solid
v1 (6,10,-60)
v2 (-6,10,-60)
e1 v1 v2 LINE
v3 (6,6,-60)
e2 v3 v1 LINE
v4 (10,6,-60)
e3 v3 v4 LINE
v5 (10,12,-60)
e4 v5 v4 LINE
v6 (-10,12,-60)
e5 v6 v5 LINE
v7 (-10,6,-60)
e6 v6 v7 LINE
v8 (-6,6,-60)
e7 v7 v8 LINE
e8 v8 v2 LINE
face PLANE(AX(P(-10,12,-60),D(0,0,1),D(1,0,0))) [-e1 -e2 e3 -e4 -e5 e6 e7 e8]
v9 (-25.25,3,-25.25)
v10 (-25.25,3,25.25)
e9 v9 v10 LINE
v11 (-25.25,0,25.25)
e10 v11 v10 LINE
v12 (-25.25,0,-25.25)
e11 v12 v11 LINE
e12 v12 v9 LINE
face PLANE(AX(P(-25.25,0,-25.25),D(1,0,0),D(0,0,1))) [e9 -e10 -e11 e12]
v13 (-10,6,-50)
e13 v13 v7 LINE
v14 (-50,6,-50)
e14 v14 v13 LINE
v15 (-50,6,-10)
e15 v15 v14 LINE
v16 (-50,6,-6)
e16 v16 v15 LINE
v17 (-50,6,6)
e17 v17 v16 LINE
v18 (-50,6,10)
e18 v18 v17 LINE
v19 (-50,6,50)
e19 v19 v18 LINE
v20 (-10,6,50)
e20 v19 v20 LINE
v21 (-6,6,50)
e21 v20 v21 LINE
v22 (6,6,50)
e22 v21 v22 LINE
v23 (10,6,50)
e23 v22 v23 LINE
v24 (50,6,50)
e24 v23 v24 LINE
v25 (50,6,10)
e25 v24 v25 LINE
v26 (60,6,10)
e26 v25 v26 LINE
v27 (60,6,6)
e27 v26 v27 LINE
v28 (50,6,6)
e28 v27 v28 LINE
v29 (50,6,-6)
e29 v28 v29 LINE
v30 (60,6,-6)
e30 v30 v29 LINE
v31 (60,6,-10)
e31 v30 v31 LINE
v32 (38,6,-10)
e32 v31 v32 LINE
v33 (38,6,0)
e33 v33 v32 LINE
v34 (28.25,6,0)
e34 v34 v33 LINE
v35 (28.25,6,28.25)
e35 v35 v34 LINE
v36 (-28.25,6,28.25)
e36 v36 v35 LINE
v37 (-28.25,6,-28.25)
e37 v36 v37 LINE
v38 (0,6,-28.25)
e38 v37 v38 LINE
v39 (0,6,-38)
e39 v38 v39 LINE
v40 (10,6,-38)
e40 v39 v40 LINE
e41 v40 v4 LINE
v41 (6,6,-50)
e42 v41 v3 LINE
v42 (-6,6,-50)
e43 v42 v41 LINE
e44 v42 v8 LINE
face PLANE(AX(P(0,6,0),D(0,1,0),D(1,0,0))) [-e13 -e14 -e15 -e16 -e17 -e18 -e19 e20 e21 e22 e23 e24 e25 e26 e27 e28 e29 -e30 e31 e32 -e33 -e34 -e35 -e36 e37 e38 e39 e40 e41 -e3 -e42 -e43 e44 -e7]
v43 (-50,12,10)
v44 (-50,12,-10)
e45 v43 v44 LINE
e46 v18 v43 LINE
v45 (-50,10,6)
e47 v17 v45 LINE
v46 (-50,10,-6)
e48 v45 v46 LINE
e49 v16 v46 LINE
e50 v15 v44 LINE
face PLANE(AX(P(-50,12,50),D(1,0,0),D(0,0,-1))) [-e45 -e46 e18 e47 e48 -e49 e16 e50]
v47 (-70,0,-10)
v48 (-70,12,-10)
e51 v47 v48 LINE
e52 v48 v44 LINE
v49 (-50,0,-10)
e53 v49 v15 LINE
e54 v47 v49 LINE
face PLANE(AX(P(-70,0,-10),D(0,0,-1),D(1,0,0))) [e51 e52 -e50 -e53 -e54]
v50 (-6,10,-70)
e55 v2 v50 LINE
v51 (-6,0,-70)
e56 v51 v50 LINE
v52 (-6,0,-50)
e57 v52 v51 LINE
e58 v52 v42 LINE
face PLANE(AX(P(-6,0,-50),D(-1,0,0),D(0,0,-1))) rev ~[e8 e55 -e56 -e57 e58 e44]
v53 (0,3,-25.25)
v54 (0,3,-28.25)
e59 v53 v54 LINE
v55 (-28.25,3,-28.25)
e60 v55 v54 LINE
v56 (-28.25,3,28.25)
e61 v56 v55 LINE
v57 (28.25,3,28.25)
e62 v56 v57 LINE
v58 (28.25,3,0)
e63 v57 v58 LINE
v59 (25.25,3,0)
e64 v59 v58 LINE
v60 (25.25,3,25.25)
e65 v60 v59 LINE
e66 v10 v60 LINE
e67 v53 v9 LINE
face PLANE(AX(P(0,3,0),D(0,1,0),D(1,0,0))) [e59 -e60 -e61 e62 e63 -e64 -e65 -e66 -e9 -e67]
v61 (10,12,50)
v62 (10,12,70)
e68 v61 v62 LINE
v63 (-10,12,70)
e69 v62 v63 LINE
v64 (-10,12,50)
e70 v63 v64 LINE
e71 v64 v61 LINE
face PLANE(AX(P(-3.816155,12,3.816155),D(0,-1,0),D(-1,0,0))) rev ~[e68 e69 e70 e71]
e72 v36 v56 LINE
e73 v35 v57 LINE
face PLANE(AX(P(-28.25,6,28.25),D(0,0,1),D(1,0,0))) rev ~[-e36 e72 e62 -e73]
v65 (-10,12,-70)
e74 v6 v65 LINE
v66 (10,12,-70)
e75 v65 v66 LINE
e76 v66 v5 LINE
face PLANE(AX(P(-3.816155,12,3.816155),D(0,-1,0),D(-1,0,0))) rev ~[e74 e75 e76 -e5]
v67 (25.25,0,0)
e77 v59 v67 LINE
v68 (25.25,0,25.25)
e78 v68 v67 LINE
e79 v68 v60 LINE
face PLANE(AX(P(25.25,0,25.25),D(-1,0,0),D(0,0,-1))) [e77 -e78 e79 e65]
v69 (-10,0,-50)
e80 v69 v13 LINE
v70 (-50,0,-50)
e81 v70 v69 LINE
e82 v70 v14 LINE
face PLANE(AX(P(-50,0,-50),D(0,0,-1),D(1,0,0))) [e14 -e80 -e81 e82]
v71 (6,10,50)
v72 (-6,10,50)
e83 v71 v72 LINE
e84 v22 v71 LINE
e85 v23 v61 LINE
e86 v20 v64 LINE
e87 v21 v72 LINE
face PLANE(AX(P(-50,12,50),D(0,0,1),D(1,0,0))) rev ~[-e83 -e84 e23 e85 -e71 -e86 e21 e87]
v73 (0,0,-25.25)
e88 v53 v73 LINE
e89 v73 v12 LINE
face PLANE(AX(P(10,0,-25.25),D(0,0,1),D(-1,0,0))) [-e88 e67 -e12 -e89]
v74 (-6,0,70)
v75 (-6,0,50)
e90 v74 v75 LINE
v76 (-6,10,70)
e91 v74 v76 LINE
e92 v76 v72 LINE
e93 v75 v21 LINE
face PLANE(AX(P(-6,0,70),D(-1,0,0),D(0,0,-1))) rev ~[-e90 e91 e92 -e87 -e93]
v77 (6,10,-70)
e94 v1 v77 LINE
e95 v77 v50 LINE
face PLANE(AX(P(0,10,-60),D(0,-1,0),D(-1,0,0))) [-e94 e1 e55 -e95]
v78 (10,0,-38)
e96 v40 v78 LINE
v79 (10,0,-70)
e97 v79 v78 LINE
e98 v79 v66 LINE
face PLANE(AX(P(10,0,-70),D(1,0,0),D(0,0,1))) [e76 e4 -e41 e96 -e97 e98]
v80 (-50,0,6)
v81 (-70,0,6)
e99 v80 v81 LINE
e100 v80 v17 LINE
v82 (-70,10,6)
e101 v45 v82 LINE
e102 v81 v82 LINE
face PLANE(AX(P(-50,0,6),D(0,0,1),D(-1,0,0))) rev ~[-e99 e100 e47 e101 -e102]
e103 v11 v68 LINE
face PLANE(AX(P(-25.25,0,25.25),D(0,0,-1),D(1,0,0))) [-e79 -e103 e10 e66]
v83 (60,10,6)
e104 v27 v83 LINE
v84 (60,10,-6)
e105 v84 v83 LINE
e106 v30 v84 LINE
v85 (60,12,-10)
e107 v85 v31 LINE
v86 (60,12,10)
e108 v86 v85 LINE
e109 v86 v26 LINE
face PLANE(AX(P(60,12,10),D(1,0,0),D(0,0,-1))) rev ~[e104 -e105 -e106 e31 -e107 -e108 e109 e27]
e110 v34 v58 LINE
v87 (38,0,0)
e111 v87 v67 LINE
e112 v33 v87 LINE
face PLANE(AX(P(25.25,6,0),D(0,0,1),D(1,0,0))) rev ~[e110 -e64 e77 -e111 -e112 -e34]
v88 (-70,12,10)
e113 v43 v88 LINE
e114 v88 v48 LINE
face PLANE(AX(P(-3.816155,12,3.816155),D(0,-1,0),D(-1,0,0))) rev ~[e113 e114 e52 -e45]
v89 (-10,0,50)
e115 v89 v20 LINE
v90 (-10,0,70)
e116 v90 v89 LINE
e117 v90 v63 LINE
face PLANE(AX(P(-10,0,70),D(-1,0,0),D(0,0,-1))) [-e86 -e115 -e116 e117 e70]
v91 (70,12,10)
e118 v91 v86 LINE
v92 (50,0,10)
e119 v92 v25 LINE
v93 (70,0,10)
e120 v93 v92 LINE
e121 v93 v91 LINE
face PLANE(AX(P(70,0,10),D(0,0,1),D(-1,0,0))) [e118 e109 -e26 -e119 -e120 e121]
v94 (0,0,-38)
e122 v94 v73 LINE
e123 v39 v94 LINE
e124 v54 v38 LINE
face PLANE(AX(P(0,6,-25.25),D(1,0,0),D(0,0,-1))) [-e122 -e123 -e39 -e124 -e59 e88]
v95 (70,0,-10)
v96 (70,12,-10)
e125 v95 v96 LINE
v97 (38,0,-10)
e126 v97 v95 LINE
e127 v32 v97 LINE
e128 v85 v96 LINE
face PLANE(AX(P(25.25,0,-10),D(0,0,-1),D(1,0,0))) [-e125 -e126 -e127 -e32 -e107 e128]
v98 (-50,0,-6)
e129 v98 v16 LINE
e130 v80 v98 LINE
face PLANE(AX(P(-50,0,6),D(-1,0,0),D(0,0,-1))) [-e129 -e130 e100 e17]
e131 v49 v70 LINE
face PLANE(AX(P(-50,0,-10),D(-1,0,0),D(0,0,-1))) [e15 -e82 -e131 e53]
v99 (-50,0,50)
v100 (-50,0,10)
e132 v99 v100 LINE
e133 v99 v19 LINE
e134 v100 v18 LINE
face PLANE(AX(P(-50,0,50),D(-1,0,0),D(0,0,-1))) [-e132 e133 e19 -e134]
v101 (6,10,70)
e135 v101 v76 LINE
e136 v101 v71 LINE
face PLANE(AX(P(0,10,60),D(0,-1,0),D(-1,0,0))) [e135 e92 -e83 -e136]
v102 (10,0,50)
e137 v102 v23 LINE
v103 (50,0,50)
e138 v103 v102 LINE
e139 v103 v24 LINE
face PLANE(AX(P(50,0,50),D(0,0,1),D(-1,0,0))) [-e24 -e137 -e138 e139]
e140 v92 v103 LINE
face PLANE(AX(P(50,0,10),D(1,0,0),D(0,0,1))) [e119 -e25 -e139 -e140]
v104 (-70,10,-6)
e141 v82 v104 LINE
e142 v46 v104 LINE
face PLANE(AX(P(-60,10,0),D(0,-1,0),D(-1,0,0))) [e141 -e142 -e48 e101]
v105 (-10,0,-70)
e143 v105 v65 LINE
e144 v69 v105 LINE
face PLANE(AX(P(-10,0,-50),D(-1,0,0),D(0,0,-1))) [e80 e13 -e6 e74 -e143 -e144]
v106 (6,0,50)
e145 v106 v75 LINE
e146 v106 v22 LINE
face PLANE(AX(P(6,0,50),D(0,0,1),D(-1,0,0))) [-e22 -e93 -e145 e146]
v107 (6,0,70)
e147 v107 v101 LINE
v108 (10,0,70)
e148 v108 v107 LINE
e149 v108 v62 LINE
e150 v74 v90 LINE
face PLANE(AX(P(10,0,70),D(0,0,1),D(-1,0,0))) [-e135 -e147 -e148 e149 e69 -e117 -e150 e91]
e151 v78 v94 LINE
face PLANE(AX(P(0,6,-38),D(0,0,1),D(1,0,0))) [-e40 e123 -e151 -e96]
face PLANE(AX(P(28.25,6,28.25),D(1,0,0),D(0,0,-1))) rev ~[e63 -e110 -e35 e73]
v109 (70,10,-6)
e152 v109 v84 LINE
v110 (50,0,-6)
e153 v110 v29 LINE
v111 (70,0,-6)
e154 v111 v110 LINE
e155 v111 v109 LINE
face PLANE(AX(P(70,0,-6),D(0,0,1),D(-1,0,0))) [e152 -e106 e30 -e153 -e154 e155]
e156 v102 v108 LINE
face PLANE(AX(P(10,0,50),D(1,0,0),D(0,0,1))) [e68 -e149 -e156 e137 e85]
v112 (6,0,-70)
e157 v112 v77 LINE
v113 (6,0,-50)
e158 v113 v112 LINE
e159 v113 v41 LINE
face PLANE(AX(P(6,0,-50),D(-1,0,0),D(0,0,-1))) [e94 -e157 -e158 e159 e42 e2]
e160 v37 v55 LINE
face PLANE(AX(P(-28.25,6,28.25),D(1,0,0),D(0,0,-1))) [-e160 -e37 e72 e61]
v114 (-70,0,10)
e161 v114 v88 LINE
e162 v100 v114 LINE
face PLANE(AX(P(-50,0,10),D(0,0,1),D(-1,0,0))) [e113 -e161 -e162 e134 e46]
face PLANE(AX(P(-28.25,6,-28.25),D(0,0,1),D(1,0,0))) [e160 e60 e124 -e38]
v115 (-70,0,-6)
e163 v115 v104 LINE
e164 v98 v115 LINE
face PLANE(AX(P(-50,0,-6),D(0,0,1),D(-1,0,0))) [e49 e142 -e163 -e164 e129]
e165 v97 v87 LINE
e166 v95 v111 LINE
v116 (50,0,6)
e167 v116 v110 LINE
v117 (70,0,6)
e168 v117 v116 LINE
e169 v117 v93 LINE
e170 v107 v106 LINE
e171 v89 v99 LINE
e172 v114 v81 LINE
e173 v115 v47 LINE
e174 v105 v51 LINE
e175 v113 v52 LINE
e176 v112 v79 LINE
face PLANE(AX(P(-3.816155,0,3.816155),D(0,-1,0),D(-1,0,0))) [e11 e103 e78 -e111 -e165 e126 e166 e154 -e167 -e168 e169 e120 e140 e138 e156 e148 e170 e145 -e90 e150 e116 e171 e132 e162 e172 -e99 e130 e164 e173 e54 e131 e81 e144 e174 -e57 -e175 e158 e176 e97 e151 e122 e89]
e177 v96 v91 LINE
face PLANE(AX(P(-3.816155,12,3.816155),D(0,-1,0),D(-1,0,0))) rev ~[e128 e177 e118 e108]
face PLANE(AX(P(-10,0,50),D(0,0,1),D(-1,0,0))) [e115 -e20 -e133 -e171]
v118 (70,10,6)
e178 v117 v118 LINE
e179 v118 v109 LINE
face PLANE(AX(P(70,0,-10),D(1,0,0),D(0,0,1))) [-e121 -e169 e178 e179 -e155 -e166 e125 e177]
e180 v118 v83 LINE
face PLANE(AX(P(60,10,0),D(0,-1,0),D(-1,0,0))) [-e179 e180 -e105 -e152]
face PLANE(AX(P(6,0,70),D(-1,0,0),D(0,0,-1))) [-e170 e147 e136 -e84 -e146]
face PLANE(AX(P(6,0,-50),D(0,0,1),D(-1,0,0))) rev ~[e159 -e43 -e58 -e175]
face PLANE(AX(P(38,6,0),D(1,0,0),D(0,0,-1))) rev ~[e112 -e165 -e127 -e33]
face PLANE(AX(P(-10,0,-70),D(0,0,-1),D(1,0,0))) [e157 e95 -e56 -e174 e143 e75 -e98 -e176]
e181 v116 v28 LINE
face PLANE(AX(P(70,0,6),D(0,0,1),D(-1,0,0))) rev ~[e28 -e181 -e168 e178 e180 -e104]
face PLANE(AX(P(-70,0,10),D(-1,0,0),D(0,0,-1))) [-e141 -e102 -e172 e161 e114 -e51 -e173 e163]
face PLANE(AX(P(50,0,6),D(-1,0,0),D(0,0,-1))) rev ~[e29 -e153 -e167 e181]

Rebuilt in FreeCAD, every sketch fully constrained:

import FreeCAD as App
import Part
import Sketcher
from FreeCAD import Vector


def add_polygon(sketch, points):
    """Adds a closed chain of lines whose ends are joined by coincident constraints."""
    first, n = sketch.GeometryCount, len(points)
    for a, b in zip(points, points[1:] + points[:1]):
        sketch.addGeometry(Part.LineSegment(App.Vector(*a, 0), App.Vector(*b, 0)), False)
    for i in range(n):
        sketch.addConstraint(Sketcher.Constraint("Coincident", first + i, 2, first + (i + 1) % n, 1))

doc = App.newDocument("Part")
body = doc.addObject("PartDesign::Body", "Body")

# Sketch on XZ plane
sketch1 = body.newObject("Sketcher::SketchObject", "Sketch")
sketch1.AttachmentSupport = (doc.getObject("XZ_Plane"), [""])
sketch1.MapMode = "FlatFace"
add_polygon(sketch1, [(-10, -50), (-50, -50), (-50, -10), (-70, -10), (-70, 10), (-50, 10), (-50, 50), (-10, 50), (-10, 70), (10, 70), (10, 50), (50, 50), (50, 10), (70, 10), (70, -10), (25, -10), (25, 25), (-25, 25), (-25, -25), (10, -25), (10, -70), (-10, -70)])  # lines 0-21
sketch1.addConstraint([
    Sketcher.Constraint("Horizontal", 0),
    Sketcher.Constraint("Vertical", 1),
    Sketcher.Constraint("Horizontal", 2),
    Sketcher.Constraint("Vertical", 3),
    Sketcher.Constraint("Horizontal", 4),
    Sketcher.Constraint("Vertical", 5),
    Sketcher.Constraint("Horizontal", 6),
    Sketcher.Constraint("Vertical", 7),
    Sketcher.Constraint("Horizontal", 8),
    Sketcher.Constraint("Vertical", 9),
    Sketcher.Constraint("Horizontal", 10),
    Sketcher.Constraint("Vertical", 11),
    Sketcher.Constraint("Horizontal", 12),
    Sketcher.Constraint("Vertical", 13),
    Sketcher.Constraint("Horizontal", 14),
    Sketcher.Constraint("Vertical", 15),
    Sketcher.Constraint("Horizontal", 16),
    Sketcher.Constraint("Vertical", 17),
    Sketcher.Constraint("Horizontal", 18),
    Sketcher.Constraint("Vertical", 19),
    Sketcher.Constraint("Horizontal", 20),
    Sketcher.Constraint("Vertical", 21),
    Sketcher.Constraint("Symmetric", 0, 2, 10, 2, -1, 1),
    Sketcher.Constraint("Symmetric", 2, 2, 12, 2, -1, 1),
    Sketcher.Constraint("Symmetric", 15, 2, 17, 2, -1, 1),
    Sketcher.Constraint("Symmetric", 7, 2, 19, 2, -1, 1),
    Sketcher.Constraint("Symmetric", 6, 2, 9, 2, -2),
    Sketcher.Constraint("Symmetric", 4, 2, 11, 2, -2),
    Sketcher.Constraint("Horizontal", 2, 2, 13, 2),
    Sketcher.Constraint("Vertical", 7, 2, 20, 2),
    Sketcher.Constraint("Equal", 4, 8),
    Sketcher.Constraint("Equal", 10, 1),
    Sketcher.Constraint("Equal", 20, 3),
    Sketcher.Constraint("Equal", 3, 7),
    Sketcher.Constraint("Equal", 18, 15),
    Sketcher.Constraint("DistanceX", 0, 2, 0, 1, 40.0),
    Sketcher.Constraint("DistanceX", 2, 2, 2, 1, 20.0),
    Sketcher.Constraint("DistanceX", 16, 2, 16, 1, 50.5),
])
pad1 = body.newObject("PartDesign::Pad", "Pad")
pad1.Profile = sketch1
pad1.Length = 12
pad1.Reversed = True

# Sketch on XZ plane
sketch2 = body.newObject("Sketcher::SketchObject", "Sketch001")
sketch2.AttachmentSupport = (doc.getObject("XZ_Plane"), [""])
sketch2.MapMode = "FlatFace"
sketch2.AttachmentOffset = App.Placement(Vector(0, 0, -12), App.Rotation())
add_polygon(sketch2, [(-50, -50), (-50, 50), (50, 50), (50, -50)])  # lines 0-3
sketch2.addConstraint([
    Sketcher.Constraint("Vertical", 0),
    Sketcher.Constraint("Horizontal", 1),
    Sketcher.Constraint("Vertical", 2),
    Sketcher.Constraint("Horizontal", 3),
    Sketcher.Constraint("Symmetric", 0, 2, 2, 2, -1, 1),
    Sketcher.Constraint("Equal", 3, 0),
    Sketcher.Constraint("DistanceX", 1, 1, 1, 2, 100.0),
])
pocket1 = body.newObject("PartDesign::Pocket", "Pocket")
pocket1.Profile = sketch2
pocket1.Length = 6
pocket1.Reversed = True

# Sketch on XZ plane
sketch3 = body.newObject("Sketcher::SketchObject", "Sketch002")
sketch3.AttachmentSupport = (doc.getObject("XZ_Plane"), [""])
sketch3.MapMode = "FlatFace"
add_polygon(sketch3, [(-50, -6), (-50, 6), (-70, 6), (-70, -6)])  # lines 0-3
add_polygon(sketch3, [(6, 50), (6, 70), (-6, 70), (-6, 50)])  # lines 4-7
add_polygon(sketch3, [(70, -6), (70, 6), (50, 6), (50, -6)])  # lines 8-11
add_polygon(sketch3, [(6, -70), (6, -50), (-6, -50), (-6, -70)])  # lines 12-15
sketch3.addConstraint([
    Sketcher.Constraint("Vertical", 0),
    Sketcher.Constraint("Horizontal", 1),
    Sketcher.Constraint("Vertical", 2),
    Sketcher.Constraint("Horizontal", 3),
    Sketcher.Constraint("Vertical", 4),
    Sketcher.Constraint("Horizontal", 5),
    Sketcher.Constraint("Vertical", 6),
    Sketcher.Constraint("Horizontal", 7),
    Sketcher.Constraint("Vertical", 8),
    Sketcher.Constraint("Horizontal", 9),
    Sketcher.Constraint("Vertical", 10),
    Sketcher.Constraint("Horizontal", 11),
    Sketcher.Constraint("Vertical", 12),
    Sketcher.Constraint("Horizontal", 13),
    Sketcher.Constraint("Vertical", 14),
    Sketcher.Constraint("Horizontal", 15),
    Sketcher.Constraint("Symmetric", 2, 2, 8, 2, -1, 1),
    Sketcher.Constraint("Symmetric", 0, 2, 10, 2, -1, 1),
    Sketcher.Constraint("Symmetric", 6, 2, 12, 2, -1, 1),
    Sketcher.Constraint("Symmetric", 4, 2, 14, 2, -1, 1),
    Sketcher.Constraint("Horizontal", 1, 2, 8, 2),
    Sketcher.Constraint("Vertical", 7, 2, 12, 2),
    Sketcher.Constraint("Equal", 15, 0),
    Sketcher.Constraint("Equal", 11, 4),
    Sketcher.Constraint("DistanceX", 1, 2, 1, 1, 20.0),
    Sketcher.Constraint("DistanceX", 5, 2, 5, 1, 12.0),
    Sketcher.Constraint("DistanceX", 0, 2, -1, 1, 50.0),
    Sketcher.Constraint("DistanceY", -1, 1, 4, 2, 70.0),
])
pocket2 = body.newObject("PartDesign::Pocket", "Pocket001")
pocket2.Profile = sketch3
pocket2.Length = 10

# Sketch on XZ plane
sketch4 = body.newObject("Sketcher::SketchObject", "Sketch003")
sketch4.AttachmentSupport = (doc.getObject("XZ_Plane"), [""])
sketch4.MapMode = "FlatFace"
sketch4.AttachmentOffset = App.Placement(Vector(0, 0, -6), App.Rotation())
add_polygon(sketch4, [(-28, -28), (-28, 28), (28, 28), (28, -28)])  # lines 0-3
sketch4.addConstraint([
    Sketcher.Constraint("Vertical", 0),
    Sketcher.Constraint("Horizontal", 1),
    Sketcher.Constraint("Vertical", 2),
    Sketcher.Constraint("Horizontal", 3),
    Sketcher.Constraint("Symmetric", 0, 2, 2, 2, -1, 1),
    Sketcher.Constraint("Equal", 3, 0),
    Sketcher.Constraint("DistanceX", 1, 1, 1, 2, 56.5),
])
pocket3 = body.newObject("PartDesign::Pocket", "Pocket002")
pocket3.Profile = sketch4
pocket3.Length = 3
pocket3.Reversed = True

# Sketch on XZ plane
sketch5 = body.newObject("Sketcher::SketchObject", "Sketch004")
sketch5.AttachmentSupport = (doc.getObject("XZ_Plane"), [""])
sketch5.MapMode = "FlatFace"
sketch5.AttachmentOffset = App.Placement(Vector(0, 0, -12), App.Rotation())
add_polygon(sketch5, [(-10, -60), (-10, -50), (10, -50), (10, -60)])  # lines 0-3
add_polygon(sketch5, [(50, -10), (50, 10), (60, 10), (60, -10)])  # lines 4-7
sketch5.addConstraint([
    Sketcher.Constraint("Vertical", 0),
    Sketcher.Constraint("Horizontal", 1),
    Sketcher.Constraint("Vertical", 2),
    Sketcher.Constraint("Horizontal", 3),
    Sketcher.Constraint("Vertical", 4),
    Sketcher.Constraint("Horizontal", 5),
    Sketcher.Constraint("Vertical", 6),
    Sketcher.Constraint("Horizontal", 7),
    Sketcher.Constraint("Equal", 7, 0),
    Sketcher.Constraint("Equal", 3, 4),
    Sketcher.Constraint("DistanceX", 1, 1, 1, 2, 20.0),
    Sketcher.Constraint("DistanceX", 5, 1, 5, 2, 10.0),
    Sketcher.Constraint("DistanceX", 0, 2, -1, 1, 10.0),
    Sketcher.Constraint("DistanceY", 0, 2, -1, 1, 50.0),
    Sketcher.Constraint("DistanceX", -1, 1, 4, 2, 50.0),
    Sketcher.Constraint("DistanceY", -1, 1, 4, 2, 10.0),
])
pocket4 = body.newObject("PartDesign::Pocket", "Pocket003")
pocket4.Profile = sketch5
pocket4.Length = 6
pocket4.Reversed = True

# Sketch on XZ plane
sketch6 = body.newObject("Sketcher::SketchObject", "Sketch005")
sketch6.AttachmentSupport = (doc.getObject("XZ_Plane"), [""])
sketch6.MapMode = "FlatFace"
sketch6.AttachmentOffset = App.Placement(Vector(0, 0, -6), App.Rotation())
add_polygon(sketch6, [(0, -38), (0, -25), (10, -25), (10, -38)])  # lines 0-3
add_polygon(sketch6, [(25, -10), (25, 0), (38, 0), (38, -10)])  # lines 4-7
sketch6.addConstraint([
    Sketcher.Constraint("Vertical", 0),
    Sketcher.Constraint("Horizontal", 1),
    Sketcher.Constraint("Vertical", 2),
    Sketcher.Constraint("Horizontal", 3),
    Sketcher.Constraint("Vertical", 4),
    Sketcher.Constraint("Horizontal", 5),
    Sketcher.Constraint("Vertical", 6),
    Sketcher.Constraint("Horizontal", 7),
    Sketcher.Constraint("PointOnObject", 0, 2, -2),
    Sketcher.Constraint("PointOnObject", 4, 2, -1),
    Sketcher.Constraint("Equal", 7, 0),
    Sketcher.Constraint("Equal", 3, 4),
    Sketcher.Constraint("DistanceX", 1, 1, 1, 2, 10.0),
    Sketcher.Constraint("DistanceY", 2, 2, -1, 1, 38.0),
    Sketcher.Constraint("DistanceX", -1, 1, 5, 2, 38.0),
    Sketcher.Constraint("DistanceX", 5, 1, 5, 2, 12.75),
])
pocket5 = body.newObject("PartDesign::Pocket", "Pocket004")
pocket5.Profile = sketch6
pocket5.Type = "ThroughAll"
pocket5.Reversed = True

doc.recompute()
